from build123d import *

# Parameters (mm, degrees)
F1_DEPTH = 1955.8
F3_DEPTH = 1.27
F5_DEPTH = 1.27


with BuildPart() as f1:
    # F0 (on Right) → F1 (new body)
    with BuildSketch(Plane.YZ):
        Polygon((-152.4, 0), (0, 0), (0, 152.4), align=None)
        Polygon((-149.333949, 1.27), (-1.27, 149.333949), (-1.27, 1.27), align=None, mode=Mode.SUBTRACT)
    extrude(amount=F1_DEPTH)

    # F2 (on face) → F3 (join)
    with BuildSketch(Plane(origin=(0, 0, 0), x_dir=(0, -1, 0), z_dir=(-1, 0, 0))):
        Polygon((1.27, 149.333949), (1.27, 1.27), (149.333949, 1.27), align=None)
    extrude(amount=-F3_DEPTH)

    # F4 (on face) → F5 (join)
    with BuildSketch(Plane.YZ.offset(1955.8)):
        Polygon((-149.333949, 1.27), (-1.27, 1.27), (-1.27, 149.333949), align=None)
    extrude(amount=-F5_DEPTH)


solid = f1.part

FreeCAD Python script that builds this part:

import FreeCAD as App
import Part
import Sketcher
Q = App.Units.Quantity

doc = App.newDocument("Part")
body = doc.addObject("PartDesign::Body", "Body")

sketch1 = doc.addObject("Sketcher::SketchObject", "Sketch")
body.addObject(sketch1)
sketch1.AttachmentSupport = (doc.YZ_Plane, [""])
sketch1.MapMode = "FlatFace"
sketch1.addGeometry([
    Part.LineSegment(App.Vector(-152, 0, 0), App.Vector(0, 0, 0)),
    Part.LineSegment(App.Vector(0, 0, 0), App.Vector(0, 152, 0)),
    Part.LineSegment(App.Vector(0, 152, 0), App.Vector(-152, 0, 0)),
    Part.LineSegment(App.Vector(-1, 1, 0), App.Vector(-149, 1, 0)),
    Part.LineSegment(App.Vector(-149, 1, 0), App.Vector(-1, 149, 0)),
    Part.LineSegment(App.Vector(-1, 149, 0), App.Vector(-1, 1, 0)),
], False)
sketch1.addConstraint([
    Sketcher.Constraint("Coincident", 0, 2, 1, 1),
    Sketcher.Constraint("Coincident", 1, 2, 2, 1),
    Sketcher.Constraint("Coincident", 2, 2, 0, 1),
    Sketcher.Constraint("Coincident", 3, 2, 4, 1),
    Sketcher.Constraint("Coincident", 4, 2, 5, 1),
    Sketcher.Constraint("Coincident", 5, 2, 3, 1),
    Sketcher.Constraint("Horizontal", 0),
    Sketcher.Constraint("Vertical", 1),
    Sketcher.Constraint("Horizontal", 3),
    Sketcher.Constraint("Vertical", 5),
    Sketcher.Constraint("Coincident", 0, 2, -1, 1),
    Sketcher.Constraint("Parallel", 2, 4),
    Sketcher.Constraint("Equal", 0, 1),
    Sketcher.Constraint("DistanceX", 0, 1, 0, 2, Q("6 in")),
    Sketcher.Constraint("DistanceY", -1, 1, 3, 2, Q("0.05 in")),
    Sketcher.Constraint("DistanceX", 4, 2, -1, 1, Q("0.05 in")),
    Sketcher.Constraint("DistanceX", 3, 2, 3, 1, 148.063949),
])
pad1 = doc.addObject("PartDesign::Pad", "Pad")
body.addObject(pad1)
pad1.Profile = sketch1
pad1.Length = Q("77 in")

sketch2 = doc.addObject("Sketcher::SketchObject", "Sketch001")
body.addObject(sketch2)
sketch2.AttachmentSupport = (doc.YZ_Plane, [""])
sketch2.MapMode = "FlatFace"
sketch2.addGeometry([
    Part.LineSegment(App.Vector(-1, 149, 0), App.Vector(-1, 1, 0)),
    Part.LineSegment(App.Vector(-1, 1, 0), App.Vector(-149, 1, 0)),
    Part.LineSegment(App.Vector(-149, 1, 0), App.Vector(-1, 149, 0)),
], False)
sketch2.addConstraint([
    Sketcher.Constraint("Coincident", 0, 2, 1, 1),
    Sketcher.Constraint("Coincident", 1, 2, 2, 1),
    Sketcher.Constraint("Coincident", 2, 2, 0, 1),
    Sketcher.Constraint("Vertical", 0),
    Sketcher.Constraint("Horizontal", 1),
    Sketcher.Constraint("Equal", 1, 0),
    Sketcher.Constraint("DistanceX", 0, 2, -1, 1, Q("0.05 in")),
    Sketcher.Constraint("DistanceY", -1, 1, 0, 2, Q("0.05 in")),
    Sketcher.Constraint("DistanceX", 1, 2, 1, 1, 148.063949),
])
pad2 = doc.addObject("PartDesign::Pad", "Pad001")
body.addObject(pad2)
pad2.Profile = sketch2
pad2.Length = Q("0.05 in")

sketch3 = doc.addObject("Sketcher::SketchObject", "Sketch002")
body.addObject(sketch3)
sketch3.AttachmentSupport = (doc.YZ_Plane, [""])
sketch3.MapMode = "FlatFace"
sketch3.AttachmentOffset = App.Placement(App.Vector(0, 0, 77 * 25.4), App.Rotation())
sketch3.addGeometry([
    Part.LineSegment(App.Vector(-149, 1, 0), App.Vector(-1, 1, 0)),
    Part.LineSegment(App.Vector(-1, 1, 0), App.Vector(-1, 149, 0)),
    Part.LineSegment(App.Vector(-1, 149, 0), App.Vector(-149, 1, 0)),
], False)
sketch3.addConstraint([
    Sketcher.Constraint("Coincident", 0, 2, 1, 1),
    Sketcher.Constraint("Coincident", 1, 2, 2, 1),
    Sketcher.Constraint("Coincident", 2, 2, 0, 1),
    Sketcher.Constraint("Horizontal", 0),
    Sketcher.Constraint("Vertical", 1),
    Sketcher.Constraint("Equal", 0, 1),
    Sketcher.Constraint("DistanceX", 0, 2, -1, 1, Q("0.05 in")),
    Sketcher.Constraint("DistanceY", -1, 1, 0, 2, Q("0.05 in")),
    Sketcher.Constraint("DistanceX", 0, 1, 0, 2, 148.063949),
])
pad3 = doc.addObject("PartDesign::Pad", "Pad002")
body.addObject(pad3)
pad3.Profile = sketch3
pad3.Length = Q("0.05 in")
pad3.Reversed = True

doc.recompute()
